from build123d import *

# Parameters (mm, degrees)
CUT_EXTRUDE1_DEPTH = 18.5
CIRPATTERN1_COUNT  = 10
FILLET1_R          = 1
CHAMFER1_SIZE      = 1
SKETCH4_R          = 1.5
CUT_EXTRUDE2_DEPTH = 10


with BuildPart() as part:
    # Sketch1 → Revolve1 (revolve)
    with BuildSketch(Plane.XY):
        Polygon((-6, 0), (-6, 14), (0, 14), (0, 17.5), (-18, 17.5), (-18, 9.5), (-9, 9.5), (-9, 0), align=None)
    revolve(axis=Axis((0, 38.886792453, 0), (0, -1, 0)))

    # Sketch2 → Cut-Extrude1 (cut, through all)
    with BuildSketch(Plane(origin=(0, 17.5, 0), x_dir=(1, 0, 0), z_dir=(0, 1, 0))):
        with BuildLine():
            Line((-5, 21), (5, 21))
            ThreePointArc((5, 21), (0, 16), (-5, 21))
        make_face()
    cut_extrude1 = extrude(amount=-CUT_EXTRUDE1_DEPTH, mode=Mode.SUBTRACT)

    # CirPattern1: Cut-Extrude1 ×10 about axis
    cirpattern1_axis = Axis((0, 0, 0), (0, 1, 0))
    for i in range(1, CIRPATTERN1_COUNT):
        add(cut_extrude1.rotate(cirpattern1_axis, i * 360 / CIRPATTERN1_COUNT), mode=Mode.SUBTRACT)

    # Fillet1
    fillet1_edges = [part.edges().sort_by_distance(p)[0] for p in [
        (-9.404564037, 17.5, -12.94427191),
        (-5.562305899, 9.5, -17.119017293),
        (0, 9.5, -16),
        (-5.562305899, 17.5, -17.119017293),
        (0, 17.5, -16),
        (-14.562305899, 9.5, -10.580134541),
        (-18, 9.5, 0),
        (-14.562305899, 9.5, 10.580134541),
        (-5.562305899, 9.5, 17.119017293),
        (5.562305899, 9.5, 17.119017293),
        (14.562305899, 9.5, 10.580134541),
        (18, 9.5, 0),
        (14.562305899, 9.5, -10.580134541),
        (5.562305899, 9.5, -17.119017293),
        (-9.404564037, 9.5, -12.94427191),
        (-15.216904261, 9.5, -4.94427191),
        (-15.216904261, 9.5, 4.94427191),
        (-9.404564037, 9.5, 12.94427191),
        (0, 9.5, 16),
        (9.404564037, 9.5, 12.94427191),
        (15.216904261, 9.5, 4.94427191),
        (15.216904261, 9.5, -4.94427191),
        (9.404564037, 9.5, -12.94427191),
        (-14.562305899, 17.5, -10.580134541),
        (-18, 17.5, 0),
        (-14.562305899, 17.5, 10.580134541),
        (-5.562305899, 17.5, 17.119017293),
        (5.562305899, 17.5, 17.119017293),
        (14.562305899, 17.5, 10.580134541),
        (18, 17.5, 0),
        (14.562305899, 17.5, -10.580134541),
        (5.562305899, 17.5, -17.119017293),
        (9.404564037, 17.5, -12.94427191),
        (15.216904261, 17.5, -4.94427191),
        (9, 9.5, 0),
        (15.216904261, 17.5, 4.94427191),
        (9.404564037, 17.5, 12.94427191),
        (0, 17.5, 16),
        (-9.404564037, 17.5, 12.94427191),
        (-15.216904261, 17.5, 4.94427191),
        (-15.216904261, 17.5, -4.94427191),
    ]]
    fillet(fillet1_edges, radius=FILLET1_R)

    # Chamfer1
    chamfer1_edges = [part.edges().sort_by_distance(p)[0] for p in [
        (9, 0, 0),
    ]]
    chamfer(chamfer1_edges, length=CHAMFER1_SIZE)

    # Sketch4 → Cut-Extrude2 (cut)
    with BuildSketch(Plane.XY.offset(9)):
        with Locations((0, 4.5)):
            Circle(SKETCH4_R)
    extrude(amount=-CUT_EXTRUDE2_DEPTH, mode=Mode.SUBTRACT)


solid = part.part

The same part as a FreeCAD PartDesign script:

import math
import FreeCAD as App
import Part
import Sketcher
Q = App.Units.Quantity


def edges_at(feature, points):
    """Names of the edges that pass closest to the given points."""
    edges = feature.Shape.Edges
    near = lambda p: min(range(len(edges)), key=lambda i: edges[i].distToShape(Part.Vertex(*p))[0])
    return sorted({f"Edge{near(p) + 1}" for p in points})


def add_polygon(sketch, points):
    """Adds a closed chain of lines whose ends are joined by coincident constraints."""
    first, n = sketch.GeometryCount, len(points)
    for a, b in zip(points, points[1:] + points[:1]):
        sketch.addGeometry(Part.LineSegment(App.Vector(*a, 0), App.Vector(*b, 0)), False)
    for i in range(n):
        sketch.addConstraint(Sketcher.Constraint("Coincident", first + i, 2, first + (i + 1) % n, 1))

doc = App.newDocument("Part")
body = doc.addObject("PartDesign::Body", "Body")

# Sketch on XY plane
sketch1 = body.newObject("Sketcher::SketchObject", "Sketch")
sketch1.AttachmentSupport = (doc.getObject("XY_Plane"), [""])
sketch1.MapMode = "FlatFace"
add_polygon(sketch1, [(-6, 0), (-6, 14), (0, 14), (0, 17.5), (-18, 17.5), (-18, 9.5), (-9, 9.5), (-9, 0)])  # lines 0-7
sketch1.addConstraint([
    Sketcher.Constraint("Vertical", 0),
    Sketcher.Constraint("Horizontal", 1),
    Sketcher.Constraint("Vertical", 2),
    Sketcher.Constraint("Horizontal", 3),
    Sketcher.Constraint("Vertical", 4),
    Sketcher.Constraint("Horizontal", 5),
    Sketcher.Constraint("Vertical", 6),
    Sketcher.Constraint("Horizontal", 7),
    Sketcher.Constraint("PointOnObject", 1, 2, -2),
    Sketcher.Constraint("PointOnObject", 6, 2, -1),
    Sketcher.Constraint("DistanceX", 1, 1, 1, 2, Q("6 mm")),
    Sketcher.Constraint("DistanceX", 3, 2, 3, 1, Q("18 mm")),
    Sketcher.Constraint("DistanceX", 5, 1, 5, 2, Q("9 mm")),
    Sketcher.Constraint("DistanceY", 0, 1, 0, 2, Q("14 mm")),
    Sketcher.Constraint("DistanceY", 4, 2, 4, 1, Q("8 mm")),
    Sketcher.Constraint("DistanceY", 2, 1, 2, 2, Q("3.5 mm")),
])
revolution = body.newObject("PartDesign::Revolution", "Revolution")
revolution.Profile = sketch1
revolution.ReferenceAxis = (sketch1, ["V_Axis"])
revolution.Angle = 360

# Sketch on XZ plane
sketch2 = body.newObject("Sketcher::SketchObject", "Sketch001")
sketch2.AttachmentSupport = (doc.getObject("XZ_Plane"), [""])
sketch2.MapMode = "FlatFace"
sketch2.AttachmentOffset = App.Placement(App.Vector(0, 0, -17.5), App.Rotation())
sketch2.addGeometry([
    Part.LineSegment(App.Vector(5, -21, 0), App.Vector(-5, -21, 0)),
    Part.ArcOfCircle(Part.Circle(App.Vector(0, -21, 0), App.Vector(0, 0, 1), 5), math.radians(0), math.radians(180)),
], False)
sketch2.addConstraint([
    Sketcher.Constraint("Coincident", 0, 1, 1, 1),
    Sketcher.Constraint("Coincident", 1, 2, 0, 2),
    Sketcher.Constraint("Horizontal", 0),
    Sketcher.Constraint("PointOnObject", 1, 3, -2),
    Sketcher.Constraint("Horizontal", 1, 3, 0, 1),
    Sketcher.Constraint("Radius", 1, Q("5 mm")),
    Sketcher.Constraint("DistanceY", 1, 3, -1, 1, Q("21 mm")),
])
pocket1 = body.newObject("PartDesign::Pocket", "Pocket")
pocket1.Profile = sketch2
pocket1.Type = "ThroughAll"
pocket1.Reversed = True
doc.recompute()

polarpattern = body.newObject("PartDesign::PolarPattern", "PolarPattern")
polarpattern.Originals = [pocket1]
polarpattern.Axis = (doc.getObject("Y_Axis"), [""])
polarpattern.Angle = 360
polarpattern.Occurrences = 10
body.Tip = polarpattern
doc.recompute()

fillet = body.newObject("PartDesign::Fillet", "Fillet")
fillet.Base = (polarpattern, edges_at(polarpattern, [
    (-9.405, 17.5, -12.944),
    (-5.562, 9.5, -17.119),
    (0, 9.5, -16),
    (-5.562, 17.5, -17.119),
    (0, 17.5, -16),
    (-14.562, 9.5, -10.58),
    (-18, 9.5, 0),
    (-14.562, 9.5, 10.58),
    (-5.562, 9.5, 17.119),
    (5.562, 9.5, 17.119),
    (14.562, 9.5, 10.58),
    (18, 9.5, 0),
    (14.562, 9.5, -10.58),
    (5.562, 9.5, -17.119),
    (-9.405, 9.5, -12.944),
    (-15.217, 9.5, -4.944),
    (-15.217, 9.5, 4.944),
    (-9.405, 9.5, 12.944),
    (0, 9.5, 16),
    (9.405, 9.5, 12.944),
    (15.217, 9.5, 4.944),
    (15.217, 9.5, -4.944),
    (9.405, 9.5, -12.944),
    (-14.562, 17.5, -10.58),
    (-18, 17.5, 0),
    (-14.562, 17.5, 10.58),
    (-5.562, 17.5, 17.119),
    (5.562, 17.5, 17.119),
    (14.562, 17.5, 10.58),
    (18, 17.5, 0),
    (14.562, 17.5, -10.58),
    (5.562, 17.5, -17.119),
    (9.405, 17.5, -12.944),
    (15.217, 17.5, -4.944),
    (9, 9.5, 0),
    (15.217, 17.5, 4.944),
    (9.405, 17.5, 12.944),
    (0, 17.5, 16),
    (-9.405, 17.5, 12.944),
    (-15.217, 17.5, 4.944),
    (-15.217, 17.5, -4.944),
]))
fillet.Radius = 1
doc.recompute()

chamfer = body.newObject("PartDesign::Chamfer", "Chamfer")
chamfer.Base = (fillet, edges_at(fillet, [(9, 0, 0)]))
chamfer.Size = 1

# Sketch on XY plane
sketch3 = body.newObject("Sketcher::SketchObject", "Sketch002")
sketch3.AttachmentSupport = (doc.getObject("XY_Plane"), [""])
sketch3.MapMode = "FlatFace"
sketch3.AttachmentOffset = App.Placement(App.Vector(0, 0, 9), App.Rotation())
sketch3.addGeometry(Part.Circle(App.Vector(0, 4.5, 0), App.Vector(0, 0, 1), 1.5), False)
sketch3.addConstraint([
    Sketcher.Constraint("PointOnObject", 0, 3, -2),
    Sketcher.Constraint("Diameter", 0, Q("3 mm")),
    Sketcher.Constraint("DistanceY", -1, 1, 0, 3, Q("4.5 mm")),
])
pocket2 = body.newObject("PartDesign::Pocket", "Pocket001")
pocket2.Profile = sketch3
pocket2.Length = 10

doc.recompute()
